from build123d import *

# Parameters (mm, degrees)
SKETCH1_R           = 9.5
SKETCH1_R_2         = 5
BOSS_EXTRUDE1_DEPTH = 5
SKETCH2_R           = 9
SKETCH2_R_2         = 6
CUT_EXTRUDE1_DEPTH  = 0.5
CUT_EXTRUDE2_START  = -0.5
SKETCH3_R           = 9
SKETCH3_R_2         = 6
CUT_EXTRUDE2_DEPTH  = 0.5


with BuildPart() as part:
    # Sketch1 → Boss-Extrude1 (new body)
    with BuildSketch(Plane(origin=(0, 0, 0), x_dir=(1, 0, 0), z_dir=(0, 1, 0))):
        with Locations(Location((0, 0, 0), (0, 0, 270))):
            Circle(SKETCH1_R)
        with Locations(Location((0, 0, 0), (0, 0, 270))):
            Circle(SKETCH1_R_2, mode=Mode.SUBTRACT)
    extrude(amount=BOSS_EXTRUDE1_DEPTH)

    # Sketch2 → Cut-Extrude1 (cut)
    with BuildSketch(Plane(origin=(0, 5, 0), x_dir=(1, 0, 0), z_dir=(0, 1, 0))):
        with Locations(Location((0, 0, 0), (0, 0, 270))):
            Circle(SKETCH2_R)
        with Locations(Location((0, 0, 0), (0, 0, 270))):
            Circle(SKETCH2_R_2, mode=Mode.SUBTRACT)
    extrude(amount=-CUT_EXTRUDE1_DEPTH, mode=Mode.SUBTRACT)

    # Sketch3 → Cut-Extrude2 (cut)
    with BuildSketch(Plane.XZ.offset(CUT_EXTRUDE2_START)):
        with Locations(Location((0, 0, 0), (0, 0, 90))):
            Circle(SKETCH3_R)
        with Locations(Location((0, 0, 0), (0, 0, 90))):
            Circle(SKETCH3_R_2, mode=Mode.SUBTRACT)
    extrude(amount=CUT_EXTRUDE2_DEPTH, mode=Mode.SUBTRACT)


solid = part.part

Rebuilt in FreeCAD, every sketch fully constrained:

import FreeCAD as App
import Part
import Sketcher
from FreeCAD import Vector
Q = App.Units.Quantity

doc = App.newDocument("Part")
params = doc.addObject("Spreadsheet::Sheet", "Params")
for row, (alias, value) in enumerate([
    ("sketch1_diameter", "19 mm"),
    ("sketch1_diameter2", "10 mm"),
    ("pad1_length", "5 mm"),
    ("sketch2_diameter", "18 mm"),
    ("sketch2_diameter2", "12 mm"),
    ("pocket1_length", "0.5 mm"),
    ("sketch3_diameter", "18 mm"),
    ("sketch3_diameter2", "12 mm"),
    ("pocket2_length", "0.5 mm"),
], start=1):
    params.set(f"A{row}", alias)
    params.set(f"B{row}", "=" + value)
    params.setAlias(f"B{row}", alias)

body = doc.addObject("PartDesign::Body", "Body")

# Sketch on XZ plane
sketch1 = doc.addObject("Sketcher::SketchObject", "Sketch")
body.addObject(sketch1)
sketch1.AttachmentSupport = (doc.XZ_Plane, [""])
sketch1.MapMode = "FlatFace"
sketch1.addGeometry([
    Part.Circle(Vector(0, 0, 0), Vector(0, 0, 1), 10),
    Part.Circle(Vector(0, 0, 0), Vector(0, 0, 1), 5),
], False)
sketch1.addConstraint([
    Sketcher.Constraint("Coincident", 0, 3, -1, 1),
    Sketcher.Constraint("Coincident", 1, 3, -1, 1),
    Sketcher.Constraint("Diameter", 0, Q("19 mm")),
    Sketcher.Constraint("Diameter", 1, Q("10 mm")),
])
sketch1.setExpression("Constraints[2]", "Params.sketch1_diameter")
sketch1.setExpression("Constraints[3]", "Params.sketch1_diameter2")
pad1 = doc.addObject("PartDesign::Pad", "Pad")
body.addObject(pad1)
pad1.Profile = sketch1
pad1.setExpression("Length", "Params.pad1_length")
pad1.Reversed = True

# Sketch on XZ plane
sketch2 = doc.addObject("Sketcher::SketchObject", "Sketch001")
body.addObject(sketch2)
sketch2.AttachmentSupport = (doc.XZ_Plane, [""])
sketch2.MapMode = "FlatFace"
sketch2.AttachmentOffset = App.Placement(Vector(0, 0, -5), App.Rotation())
sketch2.addGeometry([
    Part.Circle(Vector(0, 0, 0), Vector(0, 0, 1), 9),
    Part.Circle(Vector(0, 0, 0), Vector(0, 0, 1), 6),
], False)
sketch2.addConstraint([
    Sketcher.Constraint("Coincident", 0, 3, -1, 1),
    Sketcher.Constraint("Coincident", 1, 3, -1, 1),
    Sketcher.Constraint("Diameter", 0, Q("18 mm")),
    Sketcher.Constraint("Diameter", 1, Q("12 mm")),
])
sketch2.setExpression("Constraints[2]", "Params.sketch2_diameter")
sketch2.setExpression("Constraints[3]", "Params.sketch2_diameter2")
pocket1 = doc.addObject("PartDesign::Pocket", "Pocket")
body.addObject(pocket1)
pocket1.Profile = sketch2
pocket1.setExpression("Length", "Params.pocket1_length")
pocket1.Reversed = True

# Sketch on XZ plane
sketch3 = doc.addObject("Sketcher::SketchObject", "Sketch002")
body.addObject(sketch3)
sketch3.AttachmentSupport = (doc.XZ_Plane, [""])
sketch3.MapMode = "FlatFace"
sketch3.AttachmentOffset = App.Placement(Vector(0, 0, -0.5), App.Rotation())
sketch3.addGeometry([
    Part.Circle(Vector(0, 0, 0), Vector(0, 0, 1), 9),
    Part.Circle(Vector(0, 0, 0), Vector(0, 0, 1), 6),
], False)
sketch3.addConstraint([
    Sketcher.Constraint("Coincident", 0, 3, -1, 1),
    Sketcher.Constraint("Coincident", 1, 3, -1, 1),
    Sketcher.Constraint("Diameter", 0, Q("18 mm")),
    Sketcher.Constraint("Diameter", 1, Q("12 mm")),
])
sketch3.setExpression("Constraints[2]", "Params.sketch3_diameter")
sketch3.setExpression("Constraints[3]", "Params.sketch3_diameter2")
pocket2 = doc.addObject("PartDesign::Pocket", "Pocket001")
body.addObject(pocket2)
pocket2.Profile = sketch3
pocket2.setExpression("Length", "Params.pocket2_length")
pocket2.Reversed = True

doc.recompute()
